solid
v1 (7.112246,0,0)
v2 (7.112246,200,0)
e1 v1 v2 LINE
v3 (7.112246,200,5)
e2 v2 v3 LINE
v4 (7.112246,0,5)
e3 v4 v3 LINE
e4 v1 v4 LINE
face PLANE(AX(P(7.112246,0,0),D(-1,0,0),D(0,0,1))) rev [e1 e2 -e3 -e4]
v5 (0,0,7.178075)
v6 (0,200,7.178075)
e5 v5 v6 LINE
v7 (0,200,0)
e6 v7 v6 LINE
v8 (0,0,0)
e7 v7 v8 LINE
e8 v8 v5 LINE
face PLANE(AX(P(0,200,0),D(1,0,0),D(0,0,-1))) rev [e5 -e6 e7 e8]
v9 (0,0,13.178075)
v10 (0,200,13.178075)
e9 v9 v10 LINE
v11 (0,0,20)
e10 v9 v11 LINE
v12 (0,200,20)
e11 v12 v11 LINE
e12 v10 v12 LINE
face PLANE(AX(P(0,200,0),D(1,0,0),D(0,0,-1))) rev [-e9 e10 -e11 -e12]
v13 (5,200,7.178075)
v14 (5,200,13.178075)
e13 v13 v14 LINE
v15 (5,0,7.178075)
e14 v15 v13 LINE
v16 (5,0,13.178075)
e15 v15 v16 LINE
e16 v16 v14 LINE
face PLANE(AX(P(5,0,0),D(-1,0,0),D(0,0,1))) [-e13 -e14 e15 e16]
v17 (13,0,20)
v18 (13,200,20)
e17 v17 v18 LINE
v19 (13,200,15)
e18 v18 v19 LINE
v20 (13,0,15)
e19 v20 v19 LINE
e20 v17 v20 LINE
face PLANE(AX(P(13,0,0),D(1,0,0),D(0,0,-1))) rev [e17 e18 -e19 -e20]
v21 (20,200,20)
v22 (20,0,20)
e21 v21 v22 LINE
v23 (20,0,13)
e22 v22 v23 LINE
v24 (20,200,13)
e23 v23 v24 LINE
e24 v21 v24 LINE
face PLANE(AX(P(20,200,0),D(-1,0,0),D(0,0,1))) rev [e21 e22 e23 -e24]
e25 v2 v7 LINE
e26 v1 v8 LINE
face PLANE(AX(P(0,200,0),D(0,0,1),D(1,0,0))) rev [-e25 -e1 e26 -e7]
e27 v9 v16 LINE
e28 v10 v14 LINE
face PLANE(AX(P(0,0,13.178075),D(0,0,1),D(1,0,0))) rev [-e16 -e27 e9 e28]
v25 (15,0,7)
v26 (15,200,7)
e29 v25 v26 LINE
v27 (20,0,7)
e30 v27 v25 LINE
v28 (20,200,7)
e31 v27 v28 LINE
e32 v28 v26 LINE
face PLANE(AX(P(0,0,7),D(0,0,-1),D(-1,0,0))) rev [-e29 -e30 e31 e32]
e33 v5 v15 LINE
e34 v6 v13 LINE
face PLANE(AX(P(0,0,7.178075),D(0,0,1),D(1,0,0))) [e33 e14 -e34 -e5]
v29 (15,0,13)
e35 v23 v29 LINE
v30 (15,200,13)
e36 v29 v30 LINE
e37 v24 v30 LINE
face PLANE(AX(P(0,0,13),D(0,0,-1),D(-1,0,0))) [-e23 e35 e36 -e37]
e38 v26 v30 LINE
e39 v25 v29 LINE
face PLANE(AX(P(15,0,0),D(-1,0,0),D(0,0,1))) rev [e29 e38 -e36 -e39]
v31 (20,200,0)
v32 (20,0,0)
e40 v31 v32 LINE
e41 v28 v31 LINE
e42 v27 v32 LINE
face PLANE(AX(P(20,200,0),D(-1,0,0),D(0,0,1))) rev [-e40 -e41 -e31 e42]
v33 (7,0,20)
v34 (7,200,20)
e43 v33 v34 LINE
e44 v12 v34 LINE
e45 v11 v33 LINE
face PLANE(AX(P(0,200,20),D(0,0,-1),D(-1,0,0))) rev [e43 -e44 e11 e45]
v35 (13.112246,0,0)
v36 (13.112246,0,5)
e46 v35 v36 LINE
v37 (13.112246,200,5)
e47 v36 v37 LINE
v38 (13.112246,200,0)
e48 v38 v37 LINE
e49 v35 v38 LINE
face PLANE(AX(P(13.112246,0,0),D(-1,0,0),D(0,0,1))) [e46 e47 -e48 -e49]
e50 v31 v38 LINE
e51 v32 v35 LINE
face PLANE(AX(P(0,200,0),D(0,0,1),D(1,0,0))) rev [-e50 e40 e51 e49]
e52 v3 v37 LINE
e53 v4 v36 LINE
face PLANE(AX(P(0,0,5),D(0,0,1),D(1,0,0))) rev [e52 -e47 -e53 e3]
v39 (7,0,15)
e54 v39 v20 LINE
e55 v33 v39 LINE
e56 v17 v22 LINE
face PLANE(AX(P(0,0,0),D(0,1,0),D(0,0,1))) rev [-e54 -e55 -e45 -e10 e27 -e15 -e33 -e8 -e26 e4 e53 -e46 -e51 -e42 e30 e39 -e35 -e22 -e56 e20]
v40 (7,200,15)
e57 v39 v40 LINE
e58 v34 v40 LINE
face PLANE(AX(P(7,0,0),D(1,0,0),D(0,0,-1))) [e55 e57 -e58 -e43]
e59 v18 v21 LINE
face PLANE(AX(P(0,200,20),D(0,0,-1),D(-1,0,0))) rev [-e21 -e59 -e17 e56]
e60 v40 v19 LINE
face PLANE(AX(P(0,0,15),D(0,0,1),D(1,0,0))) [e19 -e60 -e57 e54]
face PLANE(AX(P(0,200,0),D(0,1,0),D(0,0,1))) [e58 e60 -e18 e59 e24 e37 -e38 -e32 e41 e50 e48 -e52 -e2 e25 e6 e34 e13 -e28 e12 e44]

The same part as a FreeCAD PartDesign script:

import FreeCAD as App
import Part
import Sketcher
from FreeCAD import Vector

doc = App.newDocument("Part")
params = doc.addObject("Spreadsheet::Sheet", "Params")
for row, (alias, value) in enumerate([
    ("sketch1_width", "20 mm"),
    ("pad1_length", "200 mm"),
    ("sketch2_width", "6 mm"),
    ("sketch2_width2", "5 mm"),
    ("pocket1_length", "200 mm"),
], start=1):
    params.set(f"A{row}", alias)
    params.set(f"B{row}", "=" + value)
    params.setAlias(f"B{row}", alias)

body = doc.addObject("PartDesign::Body", "Body")

# Sketch on XZ plane
sketch1 = doc.addObject("Sketcher::SketchObject", "Sketch")
body.addObject(sketch1)
sketch1.AttachmentSupport = (doc.XZ_Plane, [""])
sketch1.MapMode = "FlatFace"
sketch1.addGeometry([
    Part.LineSegment(Vector(0, 0, 0), Vector(0, 20, 0)),
    Part.LineSegment(Vector(0, 20, 0), Vector(20, 20, 0)),
    Part.LineSegment(Vector(20, 20, 0), Vector(20, 0, 0)),
    Part.LineSegment(Vector(20, 0, 0), Vector(0, 0, 0)),
], False)
sketch1.addConstraint([
    Sketcher.Constraint("Coincident", 0, 2, 1, 1),
    Sketcher.Constraint("Coincident", 1, 2, 2, 1),
    Sketcher.Constraint("Coincident", 2, 2, 3, 1),
    Sketcher.Constraint("Coincident", 3, 2, 0, 1),
    Sketcher.Constraint("Vertical", 0),
    Sketcher.Constraint("Horizontal", 1),
    Sketcher.Constraint("Vertical", 2),
    Sketcher.Constraint("Horizontal", 3),
    Sketcher.Constraint("Coincident", 3, 2, -1, 1),
    Sketcher.Constraint("Equal", 3, 0),
    Sketcher.Constraint("DistanceX", 1, 1, 1, 2, 20.0),
])
sketch1.setExpression("Constraints[10]", "Params.sketch1_width")
pad1 = doc.addObject("PartDesign::Pad", "Pad")
body.addObject(pad1)
pad1.Profile = sketch1
pad1.setExpression("Length", "Params.pad1_length")
pad1.Reversed = True

# Sketch on XZ plane
sketch2 = doc.addObject("Sketcher::SketchObject", "Sketch001")
body.addObject(sketch2)
sketch2.AttachmentSupport = (doc.XZ_Plane, [""])
sketch2.MapMode = "FlatFace"
sketch2.AttachmentOffset = App.Placement(Vector(0, 0, -200), App.Rotation())
sketch2.addGeometry([
    Part.LineSegment(Vector(7, 0, 0), Vector(7, 5, 0)),  # 0
    Part.LineSegment(Vector(7, 5, 0), Vector(13, 5, 0)),  # 1
    Part.LineSegment(Vector(13, 5, 0), Vector(13, 0, 0)),  # 2
    Part.LineSegment(Vector(13, 0, 0), Vector(7, 0, 0)),  # 3
    Part.LineSegment(Vector(0, 7, 0), Vector(0, 13, 0)),  # 4
    Part.LineSegment(Vector(0, 13, 0), Vector(5, 13, 0)),  # 5
    Part.LineSegment(Vector(5, 13, 0), Vector(5, 7, 0)),  # 6
    Part.LineSegment(Vector(5, 7, 0), Vector(0, 7, 0)),  # 7
    Part.LineSegment(Vector(15, 7, 0), Vector(15, 13, 0)),  # 8
    Part.LineSegment(Vector(15, 13, 0), Vector(20, 13, 0)),  # 9
    Part.LineSegment(Vector(20, 13, 0), Vector(20, 7, 0)),  # 10
    Part.LineSegment(Vector(20, 7, 0), Vector(15, 7, 0)),  # 11
    Part.LineSegment(Vector(7, 15, 0), Vector(7, 20, 0)),  # 12
    Part.LineSegment(Vector(7, 20, 0), Vector(13, 20, 0)),  # 13
    Part.LineSegment(Vector(13, 20, 0), Vector(13, 15, 0)),  # 14
    Part.LineSegment(Vector(13, 15, 0), Vector(7, 15, 0)),  # 15
], False)
sketch2.addConstraint([
    Sketcher.Constraint("Coincident", 0, 2, 1, 1),
    Sketcher.Constraint("Coincident", 1, 2, 2, 1),
    Sketcher.Constraint("Coincident", 2, 2, 3, 1),
    Sketcher.Constraint("Coincident", 3, 2, 0, 1),
    Sketcher.Constraint("Coincident", 4, 2, 5, 1),
    Sketcher.Constraint("Coincident", 5, 2, 6, 1),
    Sketcher.Constraint("Coincident", 6, 2, 7, 1),
    Sketcher.Constraint("Coincident", 7, 2, 4, 1),
    Sketcher.Constraint("Coincident", 8, 2, 9, 1),
    Sketcher.Constraint("Coincident", 9, 2, 10, 1),
    Sketcher.Constraint("Coincident", 10, 2, 11, 1),
    Sketcher.Constraint("Coincident", 11, 2, 8, 1),
    Sketcher.Constraint("Coincident", 12, 2, 13, 1),
    Sketcher.Constraint("Coincident", 13, 2, 14, 1),
    Sketcher.Constraint("Coincident", 14, 2, 15, 1),
    Sketcher.Constraint("Coincident", 15, 2, 12, 1),
    Sketcher.Constraint("Vertical", 0),
    Sketcher.Constraint("Horizontal", 1),
    Sketcher.Constraint("Vertical", 2),
    Sketcher.Constraint("Horizontal", 3),
    Sketcher.Constraint("Vertical", 4),
    Sketcher.Constraint("Horizontal", 5),
    Sketcher.Constraint("Vertical", 6),
    Sketcher.Constraint("Horizontal", 7),
    Sketcher.Constraint("Vertical", 8),
    Sketcher.Constraint("Horizontal", 9),
    Sketcher.Constraint("Vertical", 10),
    Sketcher.Constraint("Horizontal", 11),
    Sketcher.Constraint("Vertical", 12),
    Sketcher.Constraint("Horizontal", 13),
    Sketcher.Constraint("Vertical", 14),
    Sketcher.Constraint("Horizontal", 15),
    Sketcher.Constraint("PointOnObject", 2, 2, -1),
    Sketcher.Constraint("PointOnObject", 4, 2, -2),
    Sketcher.Constraint("Equal", 7, 9),
    Sketcher.Constraint("Equal", 3, 13),
    Sketcher.Constraint("Equal", 11, 0),
    Sketcher.Constraint("Equal", 15, 4),
    Sketcher.Constraint("Equal", 6, 8),
    Sketcher.Constraint("Equal", 2, 12),
    Sketcher.Constraint("DistanceX", 1, 1, 1, 2, 6.0),
    Sketcher.Constraint("DistanceX", 5, 1, 5, 2, 5.0),
    Sketcher.Constraint("DistanceX", -1, 1, 8, 2, 15.0),
    Sketcher.Constraint("DistanceY", -1, 1, 8, 2, 13.0),
    Sketcher.Constraint("DistanceX", -1, 1, 12, 2, 7.0),
    Sketcher.Constraint("DistanceY", -1, 1, 12, 2, 20.0),
    Sketcher.Constraint("DistanceX", -1, 1, 0, 2, 7.112246),
    Sketcher.Constraint("DistanceY", -1, 1, 4, 2, 13.178075),
])
sketch2.setExpression("Constraints[40]", "Params.sketch2_width")
sketch2.setExpression("Constraints[41]", "Params.sketch2_width2")
pocket1 = doc.addObject("PartDesign::Pocket", "Pocket")
body.addObject(pocket1)
pocket1.Profile = sketch2
pocket1.setExpression("Length", "Params.pocket1_length")
pocket1.Reversed = True

doc.recompute()
